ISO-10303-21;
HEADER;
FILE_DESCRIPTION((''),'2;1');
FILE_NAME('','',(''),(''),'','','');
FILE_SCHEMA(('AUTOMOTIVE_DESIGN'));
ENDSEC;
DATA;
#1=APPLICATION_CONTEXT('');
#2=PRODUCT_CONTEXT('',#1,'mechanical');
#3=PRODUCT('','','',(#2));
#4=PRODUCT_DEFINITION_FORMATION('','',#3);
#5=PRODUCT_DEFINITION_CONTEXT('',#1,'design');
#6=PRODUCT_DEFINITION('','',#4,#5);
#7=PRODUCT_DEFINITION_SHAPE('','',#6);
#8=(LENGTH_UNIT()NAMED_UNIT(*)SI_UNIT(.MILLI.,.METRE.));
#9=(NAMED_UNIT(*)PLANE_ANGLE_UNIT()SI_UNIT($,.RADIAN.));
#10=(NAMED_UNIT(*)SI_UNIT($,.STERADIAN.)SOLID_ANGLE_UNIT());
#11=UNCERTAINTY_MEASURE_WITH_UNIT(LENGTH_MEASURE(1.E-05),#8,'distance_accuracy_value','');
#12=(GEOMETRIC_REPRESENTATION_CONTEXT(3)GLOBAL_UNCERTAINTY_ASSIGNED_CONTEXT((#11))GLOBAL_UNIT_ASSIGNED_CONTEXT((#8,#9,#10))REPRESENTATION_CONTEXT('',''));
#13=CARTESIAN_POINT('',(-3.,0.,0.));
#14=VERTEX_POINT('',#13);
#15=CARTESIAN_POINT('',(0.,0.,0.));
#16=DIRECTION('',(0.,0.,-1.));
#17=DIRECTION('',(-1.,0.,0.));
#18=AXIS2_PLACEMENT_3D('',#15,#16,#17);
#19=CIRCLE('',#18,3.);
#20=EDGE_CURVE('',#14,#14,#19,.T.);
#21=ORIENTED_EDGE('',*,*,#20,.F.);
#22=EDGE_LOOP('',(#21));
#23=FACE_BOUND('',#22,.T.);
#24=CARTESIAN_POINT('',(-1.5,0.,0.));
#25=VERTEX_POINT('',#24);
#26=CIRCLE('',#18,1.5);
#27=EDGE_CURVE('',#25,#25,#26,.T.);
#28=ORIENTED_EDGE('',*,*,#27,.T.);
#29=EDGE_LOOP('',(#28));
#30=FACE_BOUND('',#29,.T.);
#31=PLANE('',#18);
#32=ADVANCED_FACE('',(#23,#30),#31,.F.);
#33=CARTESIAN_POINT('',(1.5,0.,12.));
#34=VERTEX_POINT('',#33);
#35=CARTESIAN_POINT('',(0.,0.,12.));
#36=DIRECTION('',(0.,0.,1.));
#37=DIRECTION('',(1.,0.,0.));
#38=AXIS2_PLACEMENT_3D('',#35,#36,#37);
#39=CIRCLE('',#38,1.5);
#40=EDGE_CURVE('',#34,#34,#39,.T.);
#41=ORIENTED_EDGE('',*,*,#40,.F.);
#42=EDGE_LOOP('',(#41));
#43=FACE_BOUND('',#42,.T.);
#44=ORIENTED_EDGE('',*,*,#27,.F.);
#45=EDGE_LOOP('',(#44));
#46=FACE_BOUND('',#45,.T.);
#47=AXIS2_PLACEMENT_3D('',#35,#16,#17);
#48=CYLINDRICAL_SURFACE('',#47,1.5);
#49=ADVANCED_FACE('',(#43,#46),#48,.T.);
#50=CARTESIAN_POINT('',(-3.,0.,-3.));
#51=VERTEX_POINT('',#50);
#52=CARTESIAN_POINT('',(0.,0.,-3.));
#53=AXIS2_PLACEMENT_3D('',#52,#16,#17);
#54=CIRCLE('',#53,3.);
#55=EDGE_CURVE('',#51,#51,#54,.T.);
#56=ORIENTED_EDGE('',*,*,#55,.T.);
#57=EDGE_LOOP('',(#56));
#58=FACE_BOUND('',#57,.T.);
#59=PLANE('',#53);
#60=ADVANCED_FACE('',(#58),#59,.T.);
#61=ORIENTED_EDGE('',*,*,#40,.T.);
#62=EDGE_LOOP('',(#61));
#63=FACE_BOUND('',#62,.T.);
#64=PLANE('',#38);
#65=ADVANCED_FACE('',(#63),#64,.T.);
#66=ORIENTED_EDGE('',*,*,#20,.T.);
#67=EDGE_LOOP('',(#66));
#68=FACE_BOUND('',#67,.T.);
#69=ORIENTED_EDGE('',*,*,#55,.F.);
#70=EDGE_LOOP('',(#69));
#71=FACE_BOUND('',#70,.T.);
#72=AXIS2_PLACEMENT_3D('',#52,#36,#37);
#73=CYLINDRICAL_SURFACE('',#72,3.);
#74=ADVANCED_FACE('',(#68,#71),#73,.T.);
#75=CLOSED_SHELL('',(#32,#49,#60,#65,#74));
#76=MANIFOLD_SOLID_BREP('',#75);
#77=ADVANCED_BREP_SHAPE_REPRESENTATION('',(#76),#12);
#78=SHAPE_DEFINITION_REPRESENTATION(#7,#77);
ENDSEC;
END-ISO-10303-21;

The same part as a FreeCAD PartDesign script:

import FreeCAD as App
import Part
import Sketcher
from FreeCAD import Vector
Q = App.Units.Quantity

doc = App.newDocument("Part")
body = doc.addObject("PartDesign::Body", "Body")

# Sketch on XY plane
sketch1 = doc.addObject("Sketcher::SketchObject", "Sketch")
body.addObject(sketch1)
sketch1.AttachmentSupport = (doc.XY_Plane, [""])
sketch1.MapMode = "FlatFace"
sketch1.addGeometry(Part.Circle(Vector(0, 0, 0), Vector(0, 0, 1), 1.5), False)
sketch1.addConstraint([
    Sketcher.Constraint("Coincident", 0, 3, -1, 1),
    Sketcher.Constraint("Diameter", 0, Q("3 mm")),
])
pad1 = doc.addObject("PartDesign::Pad", "Pad")
body.addObject(pad1)
pad1.Profile = sketch1
pad1.Length = 12

# Sketch on XY plane
sketch2 = doc.addObject("Sketcher::SketchObject", "Sketch001")
body.addObject(sketch2)
sketch2.AttachmentSupport = (doc.XY_Plane, [""])
sketch2.MapMode = "FlatFace"
sketch2.addGeometry(Part.Circle(Vector(0, 0, 0), Vector(0, 0, 1), 3), False)
sketch2.addConstraint([
    Sketcher.Constraint("Coincident", 0, 3, -1, 1),
    Sketcher.Constraint("Diameter", 0, Q("6 mm")),
])
pad2 = doc.addObject("PartDesign::Pad", "Pad001")
body.addObject(pad2)
pad2.Profile = sketch2
pad2.Length = 3
pad2.Reversed = True

doc.recompute()
